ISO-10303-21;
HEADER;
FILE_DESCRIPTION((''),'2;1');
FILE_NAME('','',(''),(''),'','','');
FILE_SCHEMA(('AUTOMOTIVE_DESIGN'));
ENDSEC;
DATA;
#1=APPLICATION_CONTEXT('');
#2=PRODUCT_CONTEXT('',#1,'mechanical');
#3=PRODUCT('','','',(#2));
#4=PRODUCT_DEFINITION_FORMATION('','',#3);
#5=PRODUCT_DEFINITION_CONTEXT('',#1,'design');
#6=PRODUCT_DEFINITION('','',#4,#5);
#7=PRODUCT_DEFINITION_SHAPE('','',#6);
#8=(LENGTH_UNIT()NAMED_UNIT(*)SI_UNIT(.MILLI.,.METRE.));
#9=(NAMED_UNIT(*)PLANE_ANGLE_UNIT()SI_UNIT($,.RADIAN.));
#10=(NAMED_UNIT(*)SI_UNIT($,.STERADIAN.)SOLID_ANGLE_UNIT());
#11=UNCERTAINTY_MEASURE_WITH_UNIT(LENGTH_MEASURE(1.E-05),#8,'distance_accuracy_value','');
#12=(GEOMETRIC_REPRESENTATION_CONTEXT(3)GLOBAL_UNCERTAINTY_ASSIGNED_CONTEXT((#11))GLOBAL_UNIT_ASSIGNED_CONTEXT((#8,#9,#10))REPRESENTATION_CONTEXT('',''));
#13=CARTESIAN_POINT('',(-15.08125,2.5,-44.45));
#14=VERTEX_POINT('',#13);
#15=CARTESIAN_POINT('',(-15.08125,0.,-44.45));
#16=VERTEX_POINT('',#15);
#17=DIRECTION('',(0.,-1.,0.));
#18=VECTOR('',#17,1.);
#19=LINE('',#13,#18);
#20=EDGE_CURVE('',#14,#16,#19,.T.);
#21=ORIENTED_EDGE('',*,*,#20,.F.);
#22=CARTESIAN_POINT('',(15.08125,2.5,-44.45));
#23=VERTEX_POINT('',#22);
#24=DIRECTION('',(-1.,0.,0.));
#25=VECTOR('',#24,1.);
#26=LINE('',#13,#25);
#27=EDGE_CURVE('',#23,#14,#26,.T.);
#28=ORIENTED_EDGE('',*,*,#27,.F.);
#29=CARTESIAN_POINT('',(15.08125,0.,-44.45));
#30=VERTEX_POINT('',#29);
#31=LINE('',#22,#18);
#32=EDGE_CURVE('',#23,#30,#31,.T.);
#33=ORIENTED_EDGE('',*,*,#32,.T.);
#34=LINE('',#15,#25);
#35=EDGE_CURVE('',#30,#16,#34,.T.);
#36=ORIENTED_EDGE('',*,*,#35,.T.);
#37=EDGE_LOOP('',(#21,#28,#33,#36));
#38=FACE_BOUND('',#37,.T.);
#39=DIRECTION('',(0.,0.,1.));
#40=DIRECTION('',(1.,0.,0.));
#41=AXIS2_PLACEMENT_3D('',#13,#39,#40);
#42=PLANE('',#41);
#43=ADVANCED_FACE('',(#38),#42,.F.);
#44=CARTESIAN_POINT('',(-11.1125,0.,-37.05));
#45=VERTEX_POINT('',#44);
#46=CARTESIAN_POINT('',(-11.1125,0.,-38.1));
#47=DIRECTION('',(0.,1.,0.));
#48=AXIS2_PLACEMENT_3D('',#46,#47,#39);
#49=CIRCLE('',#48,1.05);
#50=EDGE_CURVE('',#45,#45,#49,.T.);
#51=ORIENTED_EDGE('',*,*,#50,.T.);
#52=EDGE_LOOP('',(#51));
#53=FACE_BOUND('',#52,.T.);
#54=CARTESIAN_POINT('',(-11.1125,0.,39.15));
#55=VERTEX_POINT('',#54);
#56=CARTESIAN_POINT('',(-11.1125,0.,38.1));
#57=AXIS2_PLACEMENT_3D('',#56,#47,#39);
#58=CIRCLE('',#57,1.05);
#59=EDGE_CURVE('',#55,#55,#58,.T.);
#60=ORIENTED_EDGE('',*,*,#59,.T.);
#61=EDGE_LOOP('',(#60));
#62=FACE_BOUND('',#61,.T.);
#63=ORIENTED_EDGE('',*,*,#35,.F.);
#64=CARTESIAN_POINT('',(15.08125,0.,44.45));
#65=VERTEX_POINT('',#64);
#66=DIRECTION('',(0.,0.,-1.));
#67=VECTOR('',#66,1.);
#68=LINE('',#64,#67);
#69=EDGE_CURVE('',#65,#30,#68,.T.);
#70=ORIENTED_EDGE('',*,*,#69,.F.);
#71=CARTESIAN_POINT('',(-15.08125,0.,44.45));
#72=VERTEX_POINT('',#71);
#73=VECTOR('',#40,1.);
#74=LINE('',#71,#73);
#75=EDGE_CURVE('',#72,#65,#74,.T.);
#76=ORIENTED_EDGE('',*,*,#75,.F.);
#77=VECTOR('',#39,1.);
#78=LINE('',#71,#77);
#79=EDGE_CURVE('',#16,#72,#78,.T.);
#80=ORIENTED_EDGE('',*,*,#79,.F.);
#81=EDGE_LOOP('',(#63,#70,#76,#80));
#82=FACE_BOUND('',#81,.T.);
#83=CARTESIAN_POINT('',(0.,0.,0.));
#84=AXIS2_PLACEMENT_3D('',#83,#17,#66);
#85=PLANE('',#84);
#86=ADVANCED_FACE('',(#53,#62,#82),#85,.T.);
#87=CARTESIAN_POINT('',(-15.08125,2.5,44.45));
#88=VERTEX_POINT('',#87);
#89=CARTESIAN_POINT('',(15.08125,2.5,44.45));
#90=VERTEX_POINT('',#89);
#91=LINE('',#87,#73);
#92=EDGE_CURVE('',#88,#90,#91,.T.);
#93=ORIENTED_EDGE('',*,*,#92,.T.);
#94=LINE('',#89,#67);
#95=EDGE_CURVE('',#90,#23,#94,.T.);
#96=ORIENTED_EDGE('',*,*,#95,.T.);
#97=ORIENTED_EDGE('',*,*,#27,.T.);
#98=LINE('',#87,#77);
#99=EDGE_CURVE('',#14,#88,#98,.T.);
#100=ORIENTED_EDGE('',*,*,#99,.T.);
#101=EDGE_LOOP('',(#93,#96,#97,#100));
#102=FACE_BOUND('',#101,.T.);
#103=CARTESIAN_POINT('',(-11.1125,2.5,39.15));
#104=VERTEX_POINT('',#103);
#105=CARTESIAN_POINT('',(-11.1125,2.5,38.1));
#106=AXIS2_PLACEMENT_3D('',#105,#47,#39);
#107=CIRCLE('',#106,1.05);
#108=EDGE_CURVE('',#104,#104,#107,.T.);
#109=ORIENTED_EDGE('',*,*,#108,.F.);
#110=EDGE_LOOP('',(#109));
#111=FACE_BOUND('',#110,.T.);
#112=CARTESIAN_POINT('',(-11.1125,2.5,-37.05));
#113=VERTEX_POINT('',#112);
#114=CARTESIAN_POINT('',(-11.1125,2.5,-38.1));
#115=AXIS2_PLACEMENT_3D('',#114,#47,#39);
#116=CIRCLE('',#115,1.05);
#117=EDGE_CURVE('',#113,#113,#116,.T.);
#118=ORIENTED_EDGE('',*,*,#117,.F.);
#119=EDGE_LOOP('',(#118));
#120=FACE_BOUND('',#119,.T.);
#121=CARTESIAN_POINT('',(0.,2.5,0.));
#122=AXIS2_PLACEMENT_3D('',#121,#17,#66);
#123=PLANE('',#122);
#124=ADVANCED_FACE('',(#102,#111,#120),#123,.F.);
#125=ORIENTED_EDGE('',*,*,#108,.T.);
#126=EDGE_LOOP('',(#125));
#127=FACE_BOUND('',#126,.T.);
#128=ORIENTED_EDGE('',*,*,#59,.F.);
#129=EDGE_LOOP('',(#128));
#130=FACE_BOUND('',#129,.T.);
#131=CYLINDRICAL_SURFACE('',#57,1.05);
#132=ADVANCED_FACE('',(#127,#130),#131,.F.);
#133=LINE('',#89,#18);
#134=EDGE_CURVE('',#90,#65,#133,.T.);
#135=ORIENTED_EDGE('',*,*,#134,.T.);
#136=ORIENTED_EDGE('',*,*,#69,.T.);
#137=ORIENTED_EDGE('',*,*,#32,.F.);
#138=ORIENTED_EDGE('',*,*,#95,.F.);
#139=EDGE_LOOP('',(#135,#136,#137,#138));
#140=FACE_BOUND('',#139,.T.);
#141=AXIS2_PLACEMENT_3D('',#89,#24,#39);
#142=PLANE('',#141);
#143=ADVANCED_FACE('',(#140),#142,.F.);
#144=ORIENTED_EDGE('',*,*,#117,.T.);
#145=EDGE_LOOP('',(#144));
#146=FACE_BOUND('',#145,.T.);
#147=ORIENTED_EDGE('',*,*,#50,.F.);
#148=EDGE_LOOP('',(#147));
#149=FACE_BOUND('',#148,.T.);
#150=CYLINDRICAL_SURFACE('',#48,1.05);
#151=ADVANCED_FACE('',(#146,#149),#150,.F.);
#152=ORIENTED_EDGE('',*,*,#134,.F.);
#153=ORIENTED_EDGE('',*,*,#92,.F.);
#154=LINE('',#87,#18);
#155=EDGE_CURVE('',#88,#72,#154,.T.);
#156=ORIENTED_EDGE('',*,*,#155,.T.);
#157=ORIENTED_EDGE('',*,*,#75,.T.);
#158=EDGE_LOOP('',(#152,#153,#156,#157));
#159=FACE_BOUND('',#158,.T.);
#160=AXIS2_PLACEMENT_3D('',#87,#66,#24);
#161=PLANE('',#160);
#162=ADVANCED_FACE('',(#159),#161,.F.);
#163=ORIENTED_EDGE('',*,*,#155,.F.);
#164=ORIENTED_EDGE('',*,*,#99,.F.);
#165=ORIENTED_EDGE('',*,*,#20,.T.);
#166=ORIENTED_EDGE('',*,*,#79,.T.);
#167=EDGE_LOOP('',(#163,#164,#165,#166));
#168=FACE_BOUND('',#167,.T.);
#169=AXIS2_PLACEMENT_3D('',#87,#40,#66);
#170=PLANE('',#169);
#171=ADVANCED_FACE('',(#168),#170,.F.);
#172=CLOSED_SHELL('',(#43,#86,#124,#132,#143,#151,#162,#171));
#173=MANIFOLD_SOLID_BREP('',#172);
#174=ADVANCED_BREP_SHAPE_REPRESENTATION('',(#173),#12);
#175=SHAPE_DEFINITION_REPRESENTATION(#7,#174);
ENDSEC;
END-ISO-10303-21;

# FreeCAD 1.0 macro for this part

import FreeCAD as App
import Part
import Sketcher


def add_polygon(sketch, points):
    """Adds a closed chain of lines whose ends are joined by coincident constraints."""
    first, n = sketch.GeometryCount, len(points)
    for a, b in zip(points, points[1:] + points[:1]):
        sketch.addGeometry(Part.LineSegment(App.Vector(*a, 0), App.Vector(*b, 0)), False)
    for i in range(n):
        sketch.addConstraint(Sketcher.Constraint("Coincident", first + i, 2, first + (i + 1) % n, 1))

doc = App.newDocument("Part")
params = doc.addObject("Spreadsheet::Sheet", "Params")
for row, (alias, value) in enumerate([
    ("sketch1_height", "88.9 mm"),
    ("pad1_length", "2.5 mm"),
    ("sketch2_diameter", "2.1 mm"),
], start=1):
    params.set(f"A{row}", alias)
    params.set(f"B{row}", "=" + value)
    params.setAlias(f"B{row}", alias)

body = doc.addObject("PartDesign::Body", "Body")

# Sketch on XZ plane
sketch1 = body.newObject("Sketcher::SketchObject", "Sketch")
sketch1.AttachmentSupport = (doc.getObject("XZ_Plane"), [""])
sketch1.MapMode = "FlatFace"
add_polygon(sketch1, [(-15, -44), (-15, 44), (15, 44), (15, -44)])  # lines 0-3
sketch1.addConstraint(Sketcher.Constraint("Vertical", 0))
sketch1.addConstraint(Sketcher.Constraint("Horizontal", 1))
sketch1.addConstraint(Sketcher.Constraint("Vertical", 2))
sketch1.addConstraint(Sketcher.Constraint("Horizontal", 3))
sketch1.addConstraint(Sketcher.Constraint("Symmetric", 0, 2, 2, 2, -1, 1))
sketch1.addConstraint(Sketcher.Constraint("DistanceY", 0, 1, 0, 2, 88.9))
sketch1.addConstraint(Sketcher.Constraint("DistanceX", 1, 1, 1, 2, 30.1625))
sketch1.setExpression("Constraints[9]", "Params.sketch1_height")
pad1 = body.newObject("PartDesign::Pad", "Pad")
pad1.Profile = sketch1
pad1.setExpression("Length", "Params.pad1_length")
pad1.Reversed = True

# Sketch on XZ plane
sketch2 = body.newObject("Sketcher::SketchObject", "Sketch001")
sketch2.AttachmentSupport = (doc.getObject("XZ_Plane"), [""])
sketch2.MapMode = "FlatFace"
sketch2.AttachmentOffset = App.Placement(App.Vector(0, 0, -2.5), App.Rotation())
sketch2.addGeometry(Part.Circle(App.Vector(-11.1, -38.1, 0), App.Vector(0, 0, 1), 1.1), False)
sketch2.addGeometry(Part.Circle(App.Vector(-11.1, 38.1, 0), App.Vector(0, 0, 1), 1.1), False)
sketch2.addConstraint(Sketcher.Constraint("Equal", 0, 1))
sketch2.addConstraint(Sketcher.Constraint("Symmetric", 0, 3, 1, 3, -1))
sketch2.addConstraint(Sketcher.Constraint("Diameter", 0, 2.1))
sketch2.addConstraint(Sketcher.Constraint("DistanceY", 0, 3, -1, 1, 38.1))
sketch2.addConstraint(Sketcher.Constraint("DistanceX", 0, 3, -1, 1, 11.1125))
sketch2.setExpression("Constraints[2]", "Params.sketch2_diameter")
pocket1 = body.newObject("PartDesign::Pocket", "Pocket")
pocket1.Profile = sketch2
pocket1.Type = "ThroughAll"
pocket1.Reversed = True

doc.recompute()
